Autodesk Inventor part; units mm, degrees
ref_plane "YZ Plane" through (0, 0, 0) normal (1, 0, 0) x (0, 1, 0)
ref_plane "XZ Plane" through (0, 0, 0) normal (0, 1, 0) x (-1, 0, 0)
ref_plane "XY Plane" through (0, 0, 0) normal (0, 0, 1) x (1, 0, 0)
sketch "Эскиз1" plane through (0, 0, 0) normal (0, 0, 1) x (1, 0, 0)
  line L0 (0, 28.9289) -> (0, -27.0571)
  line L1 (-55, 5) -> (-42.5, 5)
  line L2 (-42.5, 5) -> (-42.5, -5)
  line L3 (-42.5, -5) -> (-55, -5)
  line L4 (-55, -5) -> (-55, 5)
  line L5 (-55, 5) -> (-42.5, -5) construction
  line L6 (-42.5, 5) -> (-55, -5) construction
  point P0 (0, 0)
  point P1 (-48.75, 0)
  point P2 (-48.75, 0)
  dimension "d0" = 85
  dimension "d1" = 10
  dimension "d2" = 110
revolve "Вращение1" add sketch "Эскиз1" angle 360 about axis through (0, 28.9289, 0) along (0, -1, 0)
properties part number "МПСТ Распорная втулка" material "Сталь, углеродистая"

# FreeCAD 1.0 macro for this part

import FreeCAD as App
import Part
import Sketcher
from FreeCAD import Vector


def add_polygon(sketch, points):
    """Adds a closed chain of lines whose ends are joined by coincident constraints."""
    first, n = sketch.GeometryCount, len(points)
    for a, b in zip(points, points[1:] + points[:1]):
        sketch.addGeometry(Part.LineSegment(App.Vector(*a, 0), App.Vector(*b, 0)), False)
    for i in range(n):
        sketch.addConstraint(Sketcher.Constraint("Coincident", first + i, 2, first + (i + 1) % n, 1))

doc = App.newDocument("Part")
params = doc.addObject("Spreadsheet::Sheet", "Params")
for row, (alias, value) in enumerate([
    ("sketch1_height", "10 mm"),
    ("sketch1_width", "12.5 mm"),
    ("revolution_angle", "360 deg"),
], start=1):
    params.set(f"A{row}", alias)
    params.set(f"B{row}", "=" + value)
    params.setAlias(f"B{row}", alias)

body = doc.addObject("PartDesign::Body", "Body")

# Sketch on XY plane
sketch1 = body.newObject("Sketcher::SketchObject", "Sketch")
sketch1.AttachmentSupport = (doc.getObject("XY_Plane"), [""])
sketch1.MapMode = "FlatFace"
add_polygon(sketch1, [(-42.5, 5), (-55, 5), (-55, -5), (-42.5, -5)])  # lines 0-3
sketch1.addConstraint([
    Sketcher.Constraint("Horizontal", 0),
    Sketcher.Constraint("Vertical", 1),
    Sketcher.Constraint("Horizontal", 2),
    Sketcher.Constraint("Vertical", 3),
    Sketcher.Constraint("DistanceY", 1, 2, 1, 1, 10.0),
    Sketcher.Constraint("DistanceX", 0, 2, 0, 1, 12.5),
    Sketcher.Constraint("DistanceX", 0, 2, -1, 1, 55.0),
    Sketcher.Constraint("DistanceY", -1, 1, 0, 2, 5.0),
])
sketch1.setExpression("Constraints[8]", "Params.sketch1_height")
sketch1.setExpression("Constraints[9]", "Params.sketch1_width")
revolution = body.newObject("PartDesign::Revolution", "Revolution")
revolution.Profile = sketch1
revolution.ReferenceAxis = (sketch1, ["V_Axis"])
revolution.setExpression("Angle", "Params.revolution_angle")

doc.recompute()
